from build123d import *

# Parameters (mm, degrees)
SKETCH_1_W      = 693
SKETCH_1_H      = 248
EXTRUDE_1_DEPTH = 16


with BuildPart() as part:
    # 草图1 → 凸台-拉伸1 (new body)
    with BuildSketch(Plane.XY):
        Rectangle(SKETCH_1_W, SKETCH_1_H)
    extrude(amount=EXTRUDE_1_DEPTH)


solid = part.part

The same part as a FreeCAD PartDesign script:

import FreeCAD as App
import Part
import Sketcher


def add_polygon(sketch, points):
    """Adds a closed chain of lines whose ends are joined by coincident constraints."""
    first, n = sketch.GeometryCount, len(points)
    for a, b in zip(points, points[1:] + points[:1]):
        sketch.addGeometry(Part.LineSegment(App.Vector(*a, 0), App.Vector(*b, 0)), False)
    for i in range(n):
        sketch.addConstraint(Sketcher.Constraint("Coincident", first + i, 2, first + (i + 1) % n, 1))

doc = App.newDocument("Part")
params = doc.addObject("Spreadsheet::Sheet", "Params")
for row, (alias, value) in enumerate([
    ("sketch1_width", "693 mm"),
    ("sketch1_height", "248 mm"),
    ("pad1_length", "16 mm"),
], start=1):
    params.set(f"A{row}", alias)
    params.set(f"B{row}", "=" + value)
    params.setAlias(f"B{row}", alias)

body = doc.addObject("PartDesign::Body", "Body")

sketch1 = body.newObject("Sketcher::SketchObject", "Sketch")
sketch1.AttachmentSupport = (doc.getObject("XY_Plane"), [""])
sketch1.MapMode = "FlatFace"
add_polygon(sketch1, [(-346, 124), (-346, -124), (346, -124), (346, 124)])
sketch1.addConstraint([
    Sketcher.Constraint("Vertical", 0),
    Sketcher.Constraint("Horizontal", 1),
    Sketcher.Constraint("Vertical", 2),
    Sketcher.Constraint("Horizontal", 3),
    Sketcher.Constraint("Symmetric", 0, 2, 2, 2, -1, 1),
    Sketcher.Constraint("DistanceX", 1, 1, 1, 2, 693.0),
    Sketcher.Constraint("DistanceY", 0, 2, 0, 1, 248.0),
])
sketch1.setExpression("Constraints[9]", "Params.sketch1_width")
sketch1.setExpression("Constraints[10]", "Params.sketch1_height")
pad1 = body.newObject("PartDesign::Pad", "Pad")
pad1.Profile = sketch1
pad1.setExpression("Length", "Params.pad1_length")

doc.recompute()
